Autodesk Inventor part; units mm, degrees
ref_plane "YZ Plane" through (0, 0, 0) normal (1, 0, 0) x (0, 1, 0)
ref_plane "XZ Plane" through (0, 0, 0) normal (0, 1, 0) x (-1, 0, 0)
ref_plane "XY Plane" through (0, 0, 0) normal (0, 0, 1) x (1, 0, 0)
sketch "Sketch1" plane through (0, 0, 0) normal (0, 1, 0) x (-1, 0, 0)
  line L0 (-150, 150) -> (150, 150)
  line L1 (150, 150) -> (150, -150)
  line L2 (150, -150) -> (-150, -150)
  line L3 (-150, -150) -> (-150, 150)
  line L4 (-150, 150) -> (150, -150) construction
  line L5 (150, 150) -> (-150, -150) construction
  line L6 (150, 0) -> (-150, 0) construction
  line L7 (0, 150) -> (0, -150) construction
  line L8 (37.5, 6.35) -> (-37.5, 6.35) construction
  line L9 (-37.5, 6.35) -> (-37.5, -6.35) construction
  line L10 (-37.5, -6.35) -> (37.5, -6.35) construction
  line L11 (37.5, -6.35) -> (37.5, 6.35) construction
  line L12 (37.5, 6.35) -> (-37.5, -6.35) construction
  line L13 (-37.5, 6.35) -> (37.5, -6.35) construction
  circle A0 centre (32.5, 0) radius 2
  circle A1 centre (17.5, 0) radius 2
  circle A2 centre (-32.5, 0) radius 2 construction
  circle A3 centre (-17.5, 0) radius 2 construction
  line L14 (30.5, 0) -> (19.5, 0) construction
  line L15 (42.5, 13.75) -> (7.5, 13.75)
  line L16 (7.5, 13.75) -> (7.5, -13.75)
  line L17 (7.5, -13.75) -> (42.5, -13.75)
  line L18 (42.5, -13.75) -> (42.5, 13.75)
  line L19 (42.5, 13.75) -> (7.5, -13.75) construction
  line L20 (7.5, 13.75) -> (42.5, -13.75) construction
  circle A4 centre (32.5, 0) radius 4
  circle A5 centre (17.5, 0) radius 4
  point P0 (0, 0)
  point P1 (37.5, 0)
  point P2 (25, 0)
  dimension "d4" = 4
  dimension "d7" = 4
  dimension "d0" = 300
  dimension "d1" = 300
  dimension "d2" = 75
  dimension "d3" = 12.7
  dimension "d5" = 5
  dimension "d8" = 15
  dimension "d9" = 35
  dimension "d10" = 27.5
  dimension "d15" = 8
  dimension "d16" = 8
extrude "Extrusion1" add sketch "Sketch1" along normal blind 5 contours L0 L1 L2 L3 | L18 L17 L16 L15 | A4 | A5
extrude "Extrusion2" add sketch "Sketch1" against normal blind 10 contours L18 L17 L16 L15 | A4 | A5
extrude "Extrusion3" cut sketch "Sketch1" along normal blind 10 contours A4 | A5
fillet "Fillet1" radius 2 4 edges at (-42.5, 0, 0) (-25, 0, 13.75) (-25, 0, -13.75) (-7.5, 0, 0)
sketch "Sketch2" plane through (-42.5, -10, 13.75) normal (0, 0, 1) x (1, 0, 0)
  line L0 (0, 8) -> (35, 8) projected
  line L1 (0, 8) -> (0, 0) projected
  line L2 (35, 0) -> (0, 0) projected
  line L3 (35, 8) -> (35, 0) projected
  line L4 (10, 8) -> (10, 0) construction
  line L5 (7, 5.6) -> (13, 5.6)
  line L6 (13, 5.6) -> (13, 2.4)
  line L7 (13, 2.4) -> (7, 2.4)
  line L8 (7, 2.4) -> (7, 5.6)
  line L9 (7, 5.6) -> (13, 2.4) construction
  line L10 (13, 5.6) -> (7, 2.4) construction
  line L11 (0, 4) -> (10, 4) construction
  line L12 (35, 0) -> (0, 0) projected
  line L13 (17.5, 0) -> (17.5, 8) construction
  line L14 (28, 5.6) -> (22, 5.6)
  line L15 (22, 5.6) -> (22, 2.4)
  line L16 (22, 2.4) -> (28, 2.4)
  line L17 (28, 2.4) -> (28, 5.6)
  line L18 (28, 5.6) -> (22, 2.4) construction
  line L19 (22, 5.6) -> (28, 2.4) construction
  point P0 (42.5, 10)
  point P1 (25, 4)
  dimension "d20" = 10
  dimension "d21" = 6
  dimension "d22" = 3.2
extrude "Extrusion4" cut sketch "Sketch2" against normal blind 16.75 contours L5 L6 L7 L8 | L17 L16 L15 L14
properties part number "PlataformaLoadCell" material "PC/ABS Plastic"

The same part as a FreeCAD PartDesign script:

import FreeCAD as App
import Part
import Sketcher

V = App.Vector


def edges_at(feature, points):
    """Names of the edges that pass closest to the given points."""
    edges = feature.Shape.Edges
    near = lambda p: min(range(len(edges)), key=lambda i: edges[i].distToShape(Part.Vertex(*p))[0])
    return sorted({f"Edge{near(p) + 1}" for p in points})


def add_polygon(sketch, points):
    """Adds a closed chain of lines whose ends are joined by coincident constraints."""
    first, n = sketch.GeometryCount, len(points)
    for a, b in zip(points, points[1:] + points[:1]):
        sketch.addGeometry(Part.LineSegment(App.Vector(*a, 0), App.Vector(*b, 0)), False)
    for i in range(n):
        sketch.addConstraint(Sketcher.Constraint("Coincident", first + i, 2, first + (i + 1) % n, 1))

doc = App.newDocument("Part")
body = doc.addObject("PartDesign::Body", "Body")

sketch1 = body.newObject("Sketcher::SketchObject", "Sketch")
sketch1.AttachmentSupport = (doc.getObject("XZ_Plane"), [""])
sketch1.MapMode = "FlatFace"
add_polygon(sketch1, [(-150, 150), (150, 150), (150, -150), (-150, -150)])
sketch1.addGeometry(Part.Circle(V(-17.5, 0, 0), V(0, 0, 1), 2), False)
sketch1.addGeometry(Part.Circle(V(-32.5, 0, 0), V(0, 0, 1), 2), False)
sketch1.addConstraint(Sketcher.Constraint("Horizontal", 0))
sketch1.addConstraint(Sketcher.Constraint("Vertical", 1))
sketch1.addConstraint(Sketcher.Constraint("Horizontal", 2))
sketch1.addConstraint(Sketcher.Constraint("Vertical", 3))
sketch1.addConstraint(Sketcher.Constraint("Equal", 4, 5))
sketch1.addConstraint(Sketcher.Constraint("Symmetric", 0, 2, 2, 2, -1, 1))
sketch1.addConstraint(Sketcher.Constraint("PointOnObject", 4, 3, -1))
sketch1.addConstraint(Sketcher.Constraint("PointOnObject", 5, 3, -1))
sketch1.addConstraint(Sketcher.Constraint("Equal", 2, 1))
sketch1.addConstraint(Sketcher.Constraint("Diameter", 4, 4.0))
sketch1.addConstraint(Sketcher.Constraint("DistanceX", 0, 1, 0, 2, 300.0))
sketch1.addConstraint(Sketcher.Constraint("DistanceX", 5, 3, 4, 3, 15.0))
sketch1.addConstraint(Sketcher.Constraint("DistanceX", 4, 3, -1, 1, 17.5))
pad1 = body.newObject("PartDesign::Pad", "Pad")
pad1.Profile = sketch1
pad1.Length = 5
pad1.Reversed = True

sketch2 = body.newObject("Sketcher::SketchObject", "Sketch001")
sketch2.AttachmentSupport = (doc.getObject("XZ_Plane"), [""])
sketch2.MapMode = "FlatFace"
add_polygon(sketch2, [(-42.5, -13.8), (-42.5, 13.8), (-7.5, 13.8), (-7.5, -13.8)])
sketch2.addGeometry(Part.Circle(V(-17.5, 0, 0), V(0, 0, 1), 2), False)
sketch2.addGeometry(Part.Circle(V(-32.5, 0, 0), V(0, 0, 1), 2), False)
sketch2.addConstraint(Sketcher.Constraint("Vertical", 0))
sketch2.addConstraint(Sketcher.Constraint("Horizontal", 1))
sketch2.addConstraint(Sketcher.Constraint("Vertical", 2))
sketch2.addConstraint(Sketcher.Constraint("Horizontal", 3))
sketch2.addConstraint(Sketcher.Constraint("Equal", 4, 5))
sketch2.addConstraint(Sketcher.Constraint("PointOnObject", 4, 3, -1))
sketch2.addConstraint(Sketcher.Constraint("PointOnObject", 5, 3, -1))
sketch2.addConstraint(Sketcher.Constraint("Diameter", 4, 4.0))
sketch2.addConstraint(Sketcher.Constraint("DistanceX", 1, 1, 1, 2, 35.0))
sketch2.addConstraint(Sketcher.Constraint("DistanceY", 0, 1, 0, 2, 27.5))
sketch2.addConstraint(Sketcher.Constraint("DistanceX", 5, 3, 4, 3, 15.0))
sketch2.addConstraint(Sketcher.Constraint("DistanceX", 0, 2, 5, 3, 10.0))
sketch2.addConstraint(Sketcher.Constraint("DistanceX", 4, 3, -1, 1, 17.5))
sketch2.addConstraint(Sketcher.Constraint("DistanceY", -1, 1, 0, 2, 13.75))
pad2 = body.newObject("PartDesign::Pad", "Pad001")
pad2.Profile = sketch2
pad2.Length = 10

sketch3 = body.newObject("Sketcher::SketchObject", "Sketch002")
sketch3.AttachmentSupport = (doc.getObject("XZ_Plane"), [""])
sketch3.MapMode = "FlatFace"
sketch3.addGeometry(Part.Circle(V(-32.5, 0, 0), V(0, 0, 1), 4), False)
sketch3.addGeometry(Part.Circle(V(-32.5, 0, 0), V(0, 0, 1), 2), False)
sketch3.addGeometry(Part.Circle(V(-17.5, 0, 0), V(0, 0, 1), 4), False)
sketch3.addGeometry(Part.Circle(V(-17.5, 0, 0), V(0, 0, 1), 2), False)
sketch3.addConstraint(Sketcher.Constraint("Coincident", 1, 3, 0, 3))
sketch3.addConstraint(Sketcher.Constraint("Coincident", 3, 3, 2, 3))
sketch3.addConstraint(Sketcher.Constraint("Equal", 0, 2))
sketch3.addConstraint(Sketcher.Constraint("Equal", 1, 3))
sketch3.addConstraint(Sketcher.Constraint("PointOnObject", 0, 3, -1))
sketch3.addConstraint(Sketcher.Constraint("PointOnObject", 2, 3, -1))
sketch3.addConstraint(Sketcher.Constraint("Diameter", 0, 8.0))
sketch3.addConstraint(Sketcher.Constraint("Diameter", 1, 4.0))
sketch3.addConstraint(Sketcher.Constraint("DistanceX", 0, 3, 2, 3, 15.0))
sketch3.addConstraint(Sketcher.Constraint("DistanceX", 0, 3, -1, 1, 32.5))
pocket1 = body.newObject("PartDesign::Pocket", "Pocket")
pocket1.Profile = sketch3
pocket1.Length = 10
doc.recompute()

fillet = body.newObject("PartDesign::Fillet", "Fillet")
fillet.Base = (pocket1, edges_at(pocket1, [
    (-42.5, 0, 0),
    (-25, 0, 13.75),
    (-25, 0, -13.75),
    (-7.5, 0, 0),
]))
fillet.Radius = 2

sketch4 = body.newObject("Sketcher::SketchObject", "Sketch003")
sketch4.AttachmentSupport = (doc.getObject("XY_Plane"), [""])
sketch4.MapMode = "FlatFace"
sketch4.AttachmentOffset = App.Placement(V(0, 0, 13.75), App.Rotation())
add_polygon(sketch4, [(-29.5, -4.4), (-35.5, -4.4), (-35.5, -7.6), (-29.5, -7.6)])
add_polygon(sketch4, [(-14.5, -7.6), (-14.5, -4.4), (-20.5, -4.4), (-20.5, -7.6)])
sketch4.addConstraint(Sketcher.Constraint("Horizontal", 0))
sketch4.addConstraint(Sketcher.Constraint("Vertical", 1))
sketch4.addConstraint(Sketcher.Constraint("Horizontal", 2))
sketch4.addConstraint(Sketcher.Constraint("Vertical", 3))
sketch4.addConstraint(Sketcher.Constraint("Vertical", 4))
sketch4.addConstraint(Sketcher.Constraint("Horizontal", 5))
sketch4.addConstraint(Sketcher.Constraint("Vertical", 6))
sketch4.addConstraint(Sketcher.Constraint("Horizontal", 7))
sketch4.addConstraint(Sketcher.Constraint("Horizontal", 3, 2, 4, 2))
sketch4.addConstraint(Sketcher.Constraint("Horizontal", 2, 2, 6, 2))
sketch4.addConstraint(Sketcher.Constraint("Equal", 2, 5))
sketch4.addConstraint(Sketcher.Constraint("DistanceX", 0, 2, 0, 1, 6.0))
sketch4.addConstraint(Sketcher.Constraint("DistanceY", 1, 2, 1, 1, 3.2))
sketch4.addConstraint(Sketcher.Constraint("DistanceX", 3, 2, 4, 2, 15.0))
sketch4.addConstraint(Sketcher.Constraint("DistanceX", 0, 2, -1, 1, 35.5))
sketch4.addConstraint(Sketcher.Constraint("DistanceY", 0, 2, -1, 1, 4.4))
pocket2 = body.newObject("PartDesign::Pocket", "Pocket001")
pocket2.Profile = sketch4
pocket2.Length = 16.75

doc.recompute()
